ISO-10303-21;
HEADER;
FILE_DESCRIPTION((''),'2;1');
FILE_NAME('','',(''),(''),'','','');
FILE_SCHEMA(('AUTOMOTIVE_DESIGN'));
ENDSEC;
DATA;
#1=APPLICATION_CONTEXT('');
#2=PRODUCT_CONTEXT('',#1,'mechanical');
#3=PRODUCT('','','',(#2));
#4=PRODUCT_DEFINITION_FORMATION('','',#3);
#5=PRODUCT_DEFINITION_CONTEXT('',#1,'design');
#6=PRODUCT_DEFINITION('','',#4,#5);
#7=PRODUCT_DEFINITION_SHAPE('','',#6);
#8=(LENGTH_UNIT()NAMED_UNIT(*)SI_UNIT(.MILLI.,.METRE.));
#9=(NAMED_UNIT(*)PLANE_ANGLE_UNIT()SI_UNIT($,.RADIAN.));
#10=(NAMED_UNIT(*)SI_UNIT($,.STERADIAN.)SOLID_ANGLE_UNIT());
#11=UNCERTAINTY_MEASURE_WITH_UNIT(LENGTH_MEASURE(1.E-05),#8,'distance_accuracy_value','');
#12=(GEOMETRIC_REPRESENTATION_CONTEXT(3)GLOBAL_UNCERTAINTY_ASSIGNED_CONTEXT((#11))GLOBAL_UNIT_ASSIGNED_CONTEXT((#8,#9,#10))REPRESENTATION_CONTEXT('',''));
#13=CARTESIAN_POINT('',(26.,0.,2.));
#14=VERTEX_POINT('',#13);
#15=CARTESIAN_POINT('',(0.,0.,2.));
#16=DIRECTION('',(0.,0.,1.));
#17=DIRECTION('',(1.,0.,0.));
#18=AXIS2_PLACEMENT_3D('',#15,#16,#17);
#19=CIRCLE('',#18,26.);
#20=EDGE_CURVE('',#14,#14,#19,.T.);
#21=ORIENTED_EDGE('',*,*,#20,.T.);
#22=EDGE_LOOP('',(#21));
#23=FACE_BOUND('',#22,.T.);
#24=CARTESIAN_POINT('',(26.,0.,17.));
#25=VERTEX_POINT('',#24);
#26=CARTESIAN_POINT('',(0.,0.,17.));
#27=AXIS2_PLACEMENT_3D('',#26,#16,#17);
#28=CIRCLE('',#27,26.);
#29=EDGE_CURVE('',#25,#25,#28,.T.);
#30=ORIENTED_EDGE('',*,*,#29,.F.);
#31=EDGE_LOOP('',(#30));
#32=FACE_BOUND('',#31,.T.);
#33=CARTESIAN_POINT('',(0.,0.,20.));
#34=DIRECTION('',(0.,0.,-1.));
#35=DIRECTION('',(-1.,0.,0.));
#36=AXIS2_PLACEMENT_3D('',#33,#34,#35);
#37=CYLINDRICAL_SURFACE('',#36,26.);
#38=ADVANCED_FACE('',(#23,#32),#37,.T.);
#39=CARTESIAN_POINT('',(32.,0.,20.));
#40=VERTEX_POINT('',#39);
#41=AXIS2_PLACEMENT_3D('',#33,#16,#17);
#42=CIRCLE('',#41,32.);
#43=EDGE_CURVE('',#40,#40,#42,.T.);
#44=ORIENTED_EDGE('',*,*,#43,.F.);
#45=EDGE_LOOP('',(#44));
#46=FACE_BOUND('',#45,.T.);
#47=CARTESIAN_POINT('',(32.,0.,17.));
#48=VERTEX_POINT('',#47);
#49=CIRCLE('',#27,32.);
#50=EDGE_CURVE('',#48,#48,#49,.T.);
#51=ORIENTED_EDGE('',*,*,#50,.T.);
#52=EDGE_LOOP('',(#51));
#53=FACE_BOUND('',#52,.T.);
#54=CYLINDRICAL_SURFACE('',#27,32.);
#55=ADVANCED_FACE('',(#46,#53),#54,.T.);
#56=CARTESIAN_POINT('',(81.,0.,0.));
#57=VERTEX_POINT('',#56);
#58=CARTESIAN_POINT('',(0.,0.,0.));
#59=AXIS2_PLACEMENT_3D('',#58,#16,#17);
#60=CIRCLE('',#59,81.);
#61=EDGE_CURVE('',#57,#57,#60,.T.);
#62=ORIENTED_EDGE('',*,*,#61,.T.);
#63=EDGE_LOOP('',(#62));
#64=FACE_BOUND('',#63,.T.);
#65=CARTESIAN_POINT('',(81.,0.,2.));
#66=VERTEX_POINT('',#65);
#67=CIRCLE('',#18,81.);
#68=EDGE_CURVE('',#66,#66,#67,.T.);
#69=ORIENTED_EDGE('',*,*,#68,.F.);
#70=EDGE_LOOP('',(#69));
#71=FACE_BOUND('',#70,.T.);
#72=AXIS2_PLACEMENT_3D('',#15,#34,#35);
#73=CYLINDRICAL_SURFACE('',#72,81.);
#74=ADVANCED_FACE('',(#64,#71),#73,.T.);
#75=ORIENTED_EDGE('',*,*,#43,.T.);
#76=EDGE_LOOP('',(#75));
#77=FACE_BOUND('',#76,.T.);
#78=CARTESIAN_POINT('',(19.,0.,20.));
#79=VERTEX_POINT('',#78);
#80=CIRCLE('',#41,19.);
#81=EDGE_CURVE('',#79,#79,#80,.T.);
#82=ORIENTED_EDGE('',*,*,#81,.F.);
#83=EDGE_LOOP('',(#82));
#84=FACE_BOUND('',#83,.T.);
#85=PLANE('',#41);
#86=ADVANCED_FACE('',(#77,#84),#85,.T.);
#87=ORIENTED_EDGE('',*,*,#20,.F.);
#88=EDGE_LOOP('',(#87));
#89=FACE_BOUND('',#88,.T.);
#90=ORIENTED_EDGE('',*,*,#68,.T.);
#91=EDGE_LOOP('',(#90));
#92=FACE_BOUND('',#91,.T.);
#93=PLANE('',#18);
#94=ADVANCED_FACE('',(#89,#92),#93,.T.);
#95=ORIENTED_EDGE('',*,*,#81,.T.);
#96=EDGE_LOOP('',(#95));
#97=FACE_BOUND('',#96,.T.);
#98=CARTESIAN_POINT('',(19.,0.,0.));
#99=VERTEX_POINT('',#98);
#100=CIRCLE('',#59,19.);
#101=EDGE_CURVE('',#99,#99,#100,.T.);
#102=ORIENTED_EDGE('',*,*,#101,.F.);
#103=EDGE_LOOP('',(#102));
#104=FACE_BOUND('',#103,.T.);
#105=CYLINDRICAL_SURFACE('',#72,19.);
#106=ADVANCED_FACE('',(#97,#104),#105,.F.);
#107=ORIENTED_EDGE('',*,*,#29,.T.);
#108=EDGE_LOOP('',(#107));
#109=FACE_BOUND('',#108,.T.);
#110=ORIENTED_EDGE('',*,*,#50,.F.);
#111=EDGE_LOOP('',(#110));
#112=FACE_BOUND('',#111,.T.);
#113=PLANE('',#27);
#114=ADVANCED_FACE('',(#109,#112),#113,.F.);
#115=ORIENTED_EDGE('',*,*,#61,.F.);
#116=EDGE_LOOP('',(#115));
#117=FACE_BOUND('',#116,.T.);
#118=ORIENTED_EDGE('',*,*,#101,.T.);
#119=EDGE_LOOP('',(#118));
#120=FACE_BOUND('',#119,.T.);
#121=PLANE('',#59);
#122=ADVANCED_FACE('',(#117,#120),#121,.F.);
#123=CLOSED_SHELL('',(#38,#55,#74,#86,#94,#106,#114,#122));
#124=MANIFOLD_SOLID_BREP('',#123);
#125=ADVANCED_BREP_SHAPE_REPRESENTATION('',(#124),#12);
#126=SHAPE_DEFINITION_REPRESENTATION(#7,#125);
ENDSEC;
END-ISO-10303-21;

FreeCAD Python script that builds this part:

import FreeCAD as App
import Part
import Sketcher
Q = App.Units.Quantity

doc = App.newDocument("Part")
params = doc.addObject("Spreadsheet::Sheet", "Params")
for row, (alias, value) in enumerate([
    ("sketch1_diameter", "162 mm"),
    ("sketch1_diameter2", "38 mm"),
    ("pad1_length", "2 mm"),
    ("sketch2_diameter", "52 mm"),
    ("sketch2_diameter2", "38 mm"),
    ("pad2_length", "18 mm"),
    ("sketch3_diameter", "64 mm"),
    ("sketch3_diameter2", "52 mm"),
    ("pad3_length", "3 mm"),
], start=1):
    params.set(f"A{row}", alias)
    params.set(f"B{row}", "=" + value)
    params.setAlias(f"B{row}", alias)

body = doc.addObject("PartDesign::Body", "Body")

# Sketch on XY plane
sketch1 = doc.addObject("Sketcher::SketchObject", "Sketch")
body.addObject(sketch1)
sketch1.AttachmentSupport = (doc.XY_Plane, [""])
sketch1.MapMode = "FlatFace"
sketch1.addGeometry([
    Part.Circle(App.Vector(0, 0, 0), App.Vector(0, 0, 1), 81),
    Part.Circle(App.Vector(0, 0, 0), App.Vector(0, 0, 1), 19),
], False)
sketch1.addConstraint([
    Sketcher.Constraint("Coincident", 0, 3, -1, 1),
    Sketcher.Constraint("Coincident", 1, 3, -1, 1),
    Sketcher.Constraint("Diameter", 0, Q("162 mm")),
    Sketcher.Constraint("Diameter", 1, Q("38 mm")),
])
sketch1.setExpression("Constraints[2]", "Params.sketch1_diameter")
sketch1.setExpression("Constraints[3]", "Params.sketch1_diameter2")
pad1 = doc.addObject("PartDesign::Pad", "Pad")
body.addObject(pad1)
pad1.Profile = sketch1
pad1.setExpression("Length", "Params.pad1_length")

# Sketch on XY plane
sketch2 = doc.addObject("Sketcher::SketchObject", "Sketch001")
body.addObject(sketch2)
sketch2.AttachmentSupport = (doc.XY_Plane, [""])
sketch2.MapMode = "FlatFace"
sketch2.AttachmentOffset = App.Placement(App.Vector(0, 0, 2), App.Rotation())
sketch2.addGeometry([
    Part.Circle(App.Vector(0, 0, 0), App.Vector(0, 0, 1), 26),
    Part.Circle(App.Vector(0, 0, 0), App.Vector(0, 0, 1), 19),
], False)
sketch2.addConstraint([
    Sketcher.Constraint("Coincident", 0, 3, -1, 1),
    Sketcher.Constraint("Coincident", 1, 3, -1, 1),
    Sketcher.Constraint("Diameter", 0, Q("52 mm")),
    Sketcher.Constraint("Diameter", 1, Q("38 mm")),
])
sketch2.setExpression("Constraints[2]", "Params.sketch2_diameter")
sketch2.setExpression("Constraints[3]", "Params.sketch2_diameter2")
pad2 = doc.addObject("PartDesign::Pad", "Pad001")
body.addObject(pad2)
pad2.Profile = sketch2
pad2.setExpression("Length", "Params.pad2_length")

# Sketch on XY plane
sketch3 = doc.addObject("Sketcher::SketchObject", "Sketch002")
body.addObject(sketch3)
sketch3.AttachmentSupport = (doc.XY_Plane, [""])
sketch3.MapMode = "FlatFace"
sketch3.AttachmentOffset = App.Placement(App.Vector(0, 0, 17), App.Rotation())
sketch3.addGeometry([
    Part.Circle(App.Vector(0, 0, 0), App.Vector(0, 0, 1), 32),
    Part.Circle(App.Vector(0, 0, 0), App.Vector(0, 0, 1), 26),
], False)
sketch3.addConstraint([
    Sketcher.Constraint("Coincident", 0, 3, -1, 1),
    Sketcher.Constraint("Coincident", 1, 3, -1, 1),
    Sketcher.Constraint("Diameter", 0, Q("64 mm")),
    Sketcher.Constraint("Diameter", 1, Q("52 mm")),
])
sketch3.setExpression("Constraints[2]", "Params.sketch3_diameter")
sketch3.setExpression("Constraints[3]", "Params.sketch3_diameter2")
pad3 = doc.addObject("PartDesign::Pad", "Pad002")
body.addObject(pad3)
pad3.Profile = sketch3
pad3.setExpression("Length", "Params.pad3_length")

doc.recompute()
